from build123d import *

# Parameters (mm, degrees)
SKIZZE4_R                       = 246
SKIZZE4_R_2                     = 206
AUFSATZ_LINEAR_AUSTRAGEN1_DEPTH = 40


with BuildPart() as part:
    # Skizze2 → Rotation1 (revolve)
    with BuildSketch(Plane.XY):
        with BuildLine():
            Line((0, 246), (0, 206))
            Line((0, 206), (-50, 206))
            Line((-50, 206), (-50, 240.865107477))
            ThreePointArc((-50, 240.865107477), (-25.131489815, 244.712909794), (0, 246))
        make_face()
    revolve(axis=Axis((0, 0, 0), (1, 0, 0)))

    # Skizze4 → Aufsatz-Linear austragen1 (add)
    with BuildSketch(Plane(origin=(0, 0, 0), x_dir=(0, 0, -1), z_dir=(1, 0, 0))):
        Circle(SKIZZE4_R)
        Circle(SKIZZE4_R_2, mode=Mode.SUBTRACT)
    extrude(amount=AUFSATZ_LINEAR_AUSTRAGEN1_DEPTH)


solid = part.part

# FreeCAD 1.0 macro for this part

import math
import FreeCAD as App
import Part
import Sketcher
from FreeCAD import Vector

doc = App.newDocument("Part")
body = doc.addObject("PartDesign::Body", "Body")

# Sketch on XY plane
sketch1 = body.newObject("Sketcher::SketchObject", "Sketch")
sketch1.AttachmentSupport = (doc.getObject("XY_Plane"), [""])
sketch1.MapMode = "FlatFace"
sketch1.addGeometry(Part.LineSegment(Vector(0, 206, 0), Vector(0, 246, 0)), False)
sketch1.addGeometry(Part.ArcOfCircle(Part.Circle(Vector(0, 0, 0), Vector(0, 0, 1), 246), math.radians(90), math.radians(101.73)), False)
sketch1.addGeometry(Part.LineSegment(Vector(-50, 241, 0), Vector(-50, 206, 0)), False)
sketch1.addGeometry(Part.LineSegment(Vector(-50, 206, 0), Vector(0, 206, 0)), False)
sketch1.addConstraint(Sketcher.Constraint("Coincident", 0, 2, 1, 1))
sketch1.addConstraint(Sketcher.Constraint("Coincident", 1, 2, 2, 1))
sketch1.addConstraint(Sketcher.Constraint("Coincident", 2, 2, 3, 1))
sketch1.addConstraint(Sketcher.Constraint("Coincident", 3, 2, 0, 1))
sketch1.addConstraint(Sketcher.Constraint("Vertical", 0))
sketch1.addConstraint(Sketcher.Constraint("Vertical", 2))
sketch1.addConstraint(Sketcher.Constraint("Horizontal", 3))
sketch1.addConstraint(Sketcher.Constraint("Coincident", 1, 3, -1, 1))
sketch1.addConstraint(Sketcher.Constraint("PointOnObject", 0, 2, -2))
sketch1.addConstraint(Sketcher.Constraint("Radius", 1, 246.0))
sketch1.addConstraint(Sketcher.Constraint("DistanceX", 3, 1, 3, 2, 50.0))
sketch1.addConstraint(Sketcher.Constraint("DistanceY", 0, 1, 0, 2, 40.0))
revolution = body.newObject("PartDesign::Revolution", "Revolution")
revolution.Profile = sketch1
revolution.ReferenceAxis = (sketch1, ["H_Axis"])
revolution.Angle = 360

# Sketch on YZ plane
sketch2 = body.newObject("Sketcher::SketchObject", "Sketch001")
sketch2.AttachmentSupport = (doc.getObject("YZ_Plane"), [""])
sketch2.MapMode = "FlatFace"
sketch2.addGeometry(Part.Circle(Vector(0, 0, 0), Vector(0, 0, 1), 246), False)
sketch2.addGeometry(Part.Circle(Vector(0, 0, 0), Vector(0, 0, 1), 206), False)
sketch2.addConstraint(Sketcher.Constraint("Coincident", 0, 3, -1, 1))
sketch2.addConstraint(Sketcher.Constraint("Coincident", 1, 3, -1, 1))
sketch2.addConstraint(Sketcher.Constraint("Diameter", 0, 492.0))
sketch2.addConstraint(Sketcher.Constraint("Diameter", 1, 412.0))
pad1 = body.newObject("PartDesign::Pad", "Pad")
pad1.Profile = sketch2
pad1.Length = 40

doc.recompute()
